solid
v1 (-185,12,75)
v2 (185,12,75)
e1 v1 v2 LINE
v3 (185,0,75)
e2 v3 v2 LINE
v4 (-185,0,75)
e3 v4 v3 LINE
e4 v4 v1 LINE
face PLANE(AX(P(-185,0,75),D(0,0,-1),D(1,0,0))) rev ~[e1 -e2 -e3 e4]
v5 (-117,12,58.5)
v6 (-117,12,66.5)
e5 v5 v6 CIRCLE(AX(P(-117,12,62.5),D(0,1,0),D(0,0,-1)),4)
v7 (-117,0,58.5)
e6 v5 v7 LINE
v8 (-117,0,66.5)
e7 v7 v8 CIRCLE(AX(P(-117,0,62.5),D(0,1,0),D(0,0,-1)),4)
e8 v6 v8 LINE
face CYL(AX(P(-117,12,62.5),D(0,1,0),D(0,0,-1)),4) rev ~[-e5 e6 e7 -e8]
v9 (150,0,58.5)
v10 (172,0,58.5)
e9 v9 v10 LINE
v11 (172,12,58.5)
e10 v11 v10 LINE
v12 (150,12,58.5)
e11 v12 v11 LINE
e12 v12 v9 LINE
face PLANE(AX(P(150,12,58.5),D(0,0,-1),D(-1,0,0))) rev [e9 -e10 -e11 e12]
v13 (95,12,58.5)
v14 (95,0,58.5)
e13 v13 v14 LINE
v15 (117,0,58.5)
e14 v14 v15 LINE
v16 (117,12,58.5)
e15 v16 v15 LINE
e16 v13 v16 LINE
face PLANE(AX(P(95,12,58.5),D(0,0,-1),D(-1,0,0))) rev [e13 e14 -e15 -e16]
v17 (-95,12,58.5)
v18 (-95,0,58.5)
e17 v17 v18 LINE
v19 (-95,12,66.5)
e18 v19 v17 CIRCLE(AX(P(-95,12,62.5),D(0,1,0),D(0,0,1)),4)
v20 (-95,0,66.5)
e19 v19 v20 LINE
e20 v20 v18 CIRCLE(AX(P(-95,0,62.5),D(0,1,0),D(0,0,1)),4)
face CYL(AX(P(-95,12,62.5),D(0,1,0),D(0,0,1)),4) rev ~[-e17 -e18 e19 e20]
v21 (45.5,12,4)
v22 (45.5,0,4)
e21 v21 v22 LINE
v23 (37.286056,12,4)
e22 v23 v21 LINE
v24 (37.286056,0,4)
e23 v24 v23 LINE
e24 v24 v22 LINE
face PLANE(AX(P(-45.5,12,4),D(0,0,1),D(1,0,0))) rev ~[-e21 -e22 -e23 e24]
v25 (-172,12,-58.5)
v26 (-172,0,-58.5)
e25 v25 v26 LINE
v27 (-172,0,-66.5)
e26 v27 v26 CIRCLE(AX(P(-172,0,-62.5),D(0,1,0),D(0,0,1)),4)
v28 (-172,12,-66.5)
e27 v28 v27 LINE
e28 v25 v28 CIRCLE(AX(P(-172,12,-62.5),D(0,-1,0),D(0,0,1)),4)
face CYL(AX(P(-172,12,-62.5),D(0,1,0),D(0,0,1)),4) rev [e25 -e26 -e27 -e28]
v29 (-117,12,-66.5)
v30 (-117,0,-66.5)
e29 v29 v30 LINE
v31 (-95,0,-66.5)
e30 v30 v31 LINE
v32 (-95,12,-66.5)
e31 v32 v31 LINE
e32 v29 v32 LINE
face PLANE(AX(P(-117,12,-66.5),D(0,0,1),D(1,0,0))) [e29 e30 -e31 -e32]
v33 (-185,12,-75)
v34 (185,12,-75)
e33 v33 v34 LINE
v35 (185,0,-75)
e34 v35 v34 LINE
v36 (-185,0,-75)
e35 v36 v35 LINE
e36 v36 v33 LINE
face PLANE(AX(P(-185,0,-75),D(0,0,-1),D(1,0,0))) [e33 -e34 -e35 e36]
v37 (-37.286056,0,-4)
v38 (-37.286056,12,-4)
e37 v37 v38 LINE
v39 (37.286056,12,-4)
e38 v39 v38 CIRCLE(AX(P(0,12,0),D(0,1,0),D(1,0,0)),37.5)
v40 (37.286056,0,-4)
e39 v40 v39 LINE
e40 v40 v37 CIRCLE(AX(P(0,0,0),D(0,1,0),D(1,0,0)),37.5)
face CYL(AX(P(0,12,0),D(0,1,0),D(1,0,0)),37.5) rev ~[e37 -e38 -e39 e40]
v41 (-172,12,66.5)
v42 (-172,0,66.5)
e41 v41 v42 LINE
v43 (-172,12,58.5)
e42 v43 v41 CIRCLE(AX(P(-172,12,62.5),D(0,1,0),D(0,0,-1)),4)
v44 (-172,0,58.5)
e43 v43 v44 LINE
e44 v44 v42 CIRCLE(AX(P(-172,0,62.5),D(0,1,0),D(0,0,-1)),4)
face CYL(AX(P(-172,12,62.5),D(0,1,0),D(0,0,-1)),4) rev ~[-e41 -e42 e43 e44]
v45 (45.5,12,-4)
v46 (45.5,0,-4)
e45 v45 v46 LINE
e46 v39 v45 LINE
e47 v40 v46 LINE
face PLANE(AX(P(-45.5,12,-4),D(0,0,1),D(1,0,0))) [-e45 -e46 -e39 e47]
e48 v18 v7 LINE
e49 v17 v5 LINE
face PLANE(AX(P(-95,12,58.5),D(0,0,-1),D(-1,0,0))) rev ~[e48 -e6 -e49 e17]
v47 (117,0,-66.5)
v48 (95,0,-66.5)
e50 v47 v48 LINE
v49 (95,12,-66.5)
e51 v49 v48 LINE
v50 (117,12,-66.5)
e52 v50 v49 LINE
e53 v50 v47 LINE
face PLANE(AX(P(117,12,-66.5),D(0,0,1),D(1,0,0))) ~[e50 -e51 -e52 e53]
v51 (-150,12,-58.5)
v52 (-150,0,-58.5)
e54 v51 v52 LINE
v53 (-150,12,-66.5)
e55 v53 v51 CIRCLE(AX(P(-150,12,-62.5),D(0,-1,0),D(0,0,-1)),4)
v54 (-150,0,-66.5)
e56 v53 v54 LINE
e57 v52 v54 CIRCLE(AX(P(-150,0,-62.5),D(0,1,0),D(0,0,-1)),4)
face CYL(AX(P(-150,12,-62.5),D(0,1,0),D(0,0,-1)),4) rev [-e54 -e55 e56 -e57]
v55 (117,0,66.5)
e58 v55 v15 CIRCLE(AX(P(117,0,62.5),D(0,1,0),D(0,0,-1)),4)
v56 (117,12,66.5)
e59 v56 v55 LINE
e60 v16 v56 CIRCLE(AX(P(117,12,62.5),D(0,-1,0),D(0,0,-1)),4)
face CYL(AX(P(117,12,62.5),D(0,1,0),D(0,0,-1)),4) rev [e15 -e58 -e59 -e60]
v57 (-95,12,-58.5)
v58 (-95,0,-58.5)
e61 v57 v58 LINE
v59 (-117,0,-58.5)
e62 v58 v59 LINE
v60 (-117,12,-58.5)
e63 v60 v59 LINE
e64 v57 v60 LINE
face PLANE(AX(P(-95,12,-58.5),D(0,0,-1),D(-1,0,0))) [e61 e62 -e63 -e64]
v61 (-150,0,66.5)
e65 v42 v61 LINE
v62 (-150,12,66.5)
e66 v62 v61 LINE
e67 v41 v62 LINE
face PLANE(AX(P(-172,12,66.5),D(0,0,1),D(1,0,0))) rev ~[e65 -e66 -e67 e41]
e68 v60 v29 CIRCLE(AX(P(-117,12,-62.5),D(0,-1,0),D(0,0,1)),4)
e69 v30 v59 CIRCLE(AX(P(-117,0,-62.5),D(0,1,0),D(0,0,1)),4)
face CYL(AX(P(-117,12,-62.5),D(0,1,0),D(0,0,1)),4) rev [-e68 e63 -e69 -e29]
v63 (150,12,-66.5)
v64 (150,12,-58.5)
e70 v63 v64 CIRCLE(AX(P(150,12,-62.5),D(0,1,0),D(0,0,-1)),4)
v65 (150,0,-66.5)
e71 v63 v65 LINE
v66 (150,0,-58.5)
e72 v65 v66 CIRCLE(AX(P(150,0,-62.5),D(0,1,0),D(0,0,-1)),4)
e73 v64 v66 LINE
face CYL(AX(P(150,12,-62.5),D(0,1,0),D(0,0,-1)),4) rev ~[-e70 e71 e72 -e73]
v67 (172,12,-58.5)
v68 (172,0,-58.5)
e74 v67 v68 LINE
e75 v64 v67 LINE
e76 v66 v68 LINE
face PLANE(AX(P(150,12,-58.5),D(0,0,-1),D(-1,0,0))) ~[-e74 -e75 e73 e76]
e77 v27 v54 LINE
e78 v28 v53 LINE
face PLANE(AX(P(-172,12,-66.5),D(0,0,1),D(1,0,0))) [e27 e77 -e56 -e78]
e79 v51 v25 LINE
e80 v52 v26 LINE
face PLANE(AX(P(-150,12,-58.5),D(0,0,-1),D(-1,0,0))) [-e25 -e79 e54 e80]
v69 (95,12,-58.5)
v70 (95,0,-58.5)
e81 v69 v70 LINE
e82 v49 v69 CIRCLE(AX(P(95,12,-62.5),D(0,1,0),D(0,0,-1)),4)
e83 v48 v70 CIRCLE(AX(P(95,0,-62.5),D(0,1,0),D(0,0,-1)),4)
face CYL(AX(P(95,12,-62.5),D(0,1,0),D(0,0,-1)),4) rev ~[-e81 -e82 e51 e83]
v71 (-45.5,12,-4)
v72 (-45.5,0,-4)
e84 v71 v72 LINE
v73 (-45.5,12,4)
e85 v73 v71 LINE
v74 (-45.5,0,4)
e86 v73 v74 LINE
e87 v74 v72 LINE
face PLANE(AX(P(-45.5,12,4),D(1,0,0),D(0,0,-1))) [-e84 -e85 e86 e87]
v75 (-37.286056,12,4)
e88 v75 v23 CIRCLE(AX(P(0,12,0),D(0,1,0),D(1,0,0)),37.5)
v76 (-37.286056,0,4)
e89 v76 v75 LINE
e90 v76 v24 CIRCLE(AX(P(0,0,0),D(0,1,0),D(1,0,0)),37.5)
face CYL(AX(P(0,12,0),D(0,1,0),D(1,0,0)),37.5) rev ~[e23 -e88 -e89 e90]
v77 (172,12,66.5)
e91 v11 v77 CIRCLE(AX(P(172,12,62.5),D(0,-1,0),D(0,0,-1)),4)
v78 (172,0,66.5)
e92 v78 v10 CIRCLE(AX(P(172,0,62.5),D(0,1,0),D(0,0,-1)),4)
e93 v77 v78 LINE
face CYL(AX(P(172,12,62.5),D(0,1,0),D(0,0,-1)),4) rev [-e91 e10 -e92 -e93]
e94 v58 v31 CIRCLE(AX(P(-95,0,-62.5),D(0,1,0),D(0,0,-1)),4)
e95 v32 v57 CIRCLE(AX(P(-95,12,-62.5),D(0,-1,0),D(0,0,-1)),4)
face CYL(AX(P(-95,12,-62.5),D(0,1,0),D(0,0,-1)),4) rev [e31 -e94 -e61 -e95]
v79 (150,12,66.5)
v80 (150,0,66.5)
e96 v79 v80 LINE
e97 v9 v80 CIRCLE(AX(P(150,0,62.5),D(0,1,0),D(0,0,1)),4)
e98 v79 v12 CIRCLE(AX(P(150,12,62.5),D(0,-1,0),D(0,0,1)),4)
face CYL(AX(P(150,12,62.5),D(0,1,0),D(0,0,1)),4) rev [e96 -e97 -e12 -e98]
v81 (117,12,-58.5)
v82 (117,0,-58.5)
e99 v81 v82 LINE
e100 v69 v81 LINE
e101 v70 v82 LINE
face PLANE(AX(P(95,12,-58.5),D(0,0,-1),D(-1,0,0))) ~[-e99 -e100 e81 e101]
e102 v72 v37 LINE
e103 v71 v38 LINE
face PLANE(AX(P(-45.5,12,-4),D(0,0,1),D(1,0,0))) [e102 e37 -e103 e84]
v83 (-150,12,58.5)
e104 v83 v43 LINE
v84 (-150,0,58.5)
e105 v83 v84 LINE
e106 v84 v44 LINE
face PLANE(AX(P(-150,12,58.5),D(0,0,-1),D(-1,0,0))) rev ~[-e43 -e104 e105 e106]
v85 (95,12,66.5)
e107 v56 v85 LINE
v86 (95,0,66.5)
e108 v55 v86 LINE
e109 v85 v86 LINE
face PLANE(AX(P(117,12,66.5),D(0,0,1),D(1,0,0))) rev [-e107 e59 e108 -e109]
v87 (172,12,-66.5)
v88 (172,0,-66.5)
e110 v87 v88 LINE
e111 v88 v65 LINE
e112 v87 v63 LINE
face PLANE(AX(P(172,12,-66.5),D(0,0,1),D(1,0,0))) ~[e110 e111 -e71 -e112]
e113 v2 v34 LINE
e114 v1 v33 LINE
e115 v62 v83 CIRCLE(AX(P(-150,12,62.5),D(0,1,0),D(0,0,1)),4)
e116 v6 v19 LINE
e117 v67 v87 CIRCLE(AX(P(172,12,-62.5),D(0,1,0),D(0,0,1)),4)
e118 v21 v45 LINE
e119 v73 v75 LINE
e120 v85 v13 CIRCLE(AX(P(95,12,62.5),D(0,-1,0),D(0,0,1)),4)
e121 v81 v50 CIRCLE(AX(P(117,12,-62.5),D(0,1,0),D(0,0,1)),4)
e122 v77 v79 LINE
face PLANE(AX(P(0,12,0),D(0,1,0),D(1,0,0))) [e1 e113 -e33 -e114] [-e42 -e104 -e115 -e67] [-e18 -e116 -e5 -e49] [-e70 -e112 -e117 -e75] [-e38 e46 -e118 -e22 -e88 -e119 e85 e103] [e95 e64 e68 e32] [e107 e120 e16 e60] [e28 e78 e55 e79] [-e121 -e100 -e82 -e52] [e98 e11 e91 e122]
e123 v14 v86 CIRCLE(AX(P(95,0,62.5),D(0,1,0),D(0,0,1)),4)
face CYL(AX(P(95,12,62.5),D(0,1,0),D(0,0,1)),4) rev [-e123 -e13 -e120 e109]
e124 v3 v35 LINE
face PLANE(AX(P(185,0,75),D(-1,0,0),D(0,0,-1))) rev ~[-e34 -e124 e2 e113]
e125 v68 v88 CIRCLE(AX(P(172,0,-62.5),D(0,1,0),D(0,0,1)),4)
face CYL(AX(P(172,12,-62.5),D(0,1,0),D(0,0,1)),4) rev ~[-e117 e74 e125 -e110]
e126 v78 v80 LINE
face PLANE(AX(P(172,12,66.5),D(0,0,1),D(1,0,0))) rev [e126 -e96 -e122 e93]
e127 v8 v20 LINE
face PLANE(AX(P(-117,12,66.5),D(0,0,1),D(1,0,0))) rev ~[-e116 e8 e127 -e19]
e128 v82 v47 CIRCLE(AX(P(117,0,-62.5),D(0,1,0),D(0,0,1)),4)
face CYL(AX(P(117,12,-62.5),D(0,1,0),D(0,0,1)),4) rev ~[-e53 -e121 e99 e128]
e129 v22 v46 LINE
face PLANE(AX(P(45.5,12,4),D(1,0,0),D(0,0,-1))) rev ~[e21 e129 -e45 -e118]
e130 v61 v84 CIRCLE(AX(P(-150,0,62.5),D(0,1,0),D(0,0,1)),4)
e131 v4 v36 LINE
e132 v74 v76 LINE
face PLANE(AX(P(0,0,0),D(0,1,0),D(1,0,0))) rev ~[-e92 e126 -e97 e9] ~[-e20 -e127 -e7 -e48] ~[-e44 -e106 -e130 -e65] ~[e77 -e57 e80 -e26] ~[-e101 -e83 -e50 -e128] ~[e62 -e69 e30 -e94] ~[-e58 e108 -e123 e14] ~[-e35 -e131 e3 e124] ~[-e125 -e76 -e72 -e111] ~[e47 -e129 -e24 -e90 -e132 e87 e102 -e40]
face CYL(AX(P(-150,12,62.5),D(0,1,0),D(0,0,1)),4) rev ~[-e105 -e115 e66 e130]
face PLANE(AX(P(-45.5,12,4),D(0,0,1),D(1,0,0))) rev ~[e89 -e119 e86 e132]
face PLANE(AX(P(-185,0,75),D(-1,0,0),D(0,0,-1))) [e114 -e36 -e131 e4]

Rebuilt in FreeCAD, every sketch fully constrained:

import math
import FreeCAD as App
import Part
import Sketcher

V = App.Vector
Q = App.Units.Quantity


def add_polygon(sketch, points):
    """Adds a closed chain of lines whose ends are joined by coincident constraints."""
    first, n = sketch.GeometryCount, len(points)
    for a, b in zip(points, points[1:] + points[:1]):
        sketch.addGeometry(Part.LineSegment(App.Vector(*a, 0), App.Vector(*b, 0)), False)
    for i in range(n):
        sketch.addConstraint(Sketcher.Constraint("Coincident", first + i, 2, first + (i + 1) % n, 1))

doc = App.newDocument("Part")
body = doc.addObject("PartDesign::Body", "Body")

sketch1 = body.newObject("Sketcher::SketchObject", "Sketch")
sketch1.AttachmentSupport = (doc.getObject("XZ_Plane"), [""])
sketch1.MapMode = "FlatFace"
add_polygon(sketch1, [(-185, -75), (-185, 75), (185, 75), (185, -75)])
sketch1.addConstraint([
    Sketcher.Constraint("Vertical", 0),
    Sketcher.Constraint("Horizontal", 1),
    Sketcher.Constraint("Vertical", 2),
    Sketcher.Constraint("Horizontal", 3),
    Sketcher.Constraint("Symmetric", 0, 2, 2, 2, -1, 1),
    Sketcher.Constraint("DistanceX", 1, 1, 1, 2, Q("370 mm")),
    Sketcher.Constraint("DistanceY", 0, 1, 0, 2, Q("150 mm")),
])
pad1 = body.newObject("PartDesign::Pad", "Pad")
pad1.Profile = sketch1
pad1.Length = 12
pad1.Reversed = True

sketch2 = body.newObject("Sketcher::SketchObject", "Sketch001")
sketch2.AttachmentSupport = (doc.getObject("XZ_Plane"), [""])
sketch2.MapMode = "FlatFace"
sketch2.AttachmentOffset = App.Placement(V(0, 0, -12), App.Rotation())
sketch2.addGeometry(Part.Circle(V(0, 0, 0), V(0, 0, 1), 38), False)
sketch2.addConstraint([
    Sketcher.Constraint("Coincident", 0, 3, -1, 1),
    Sketcher.Constraint("Diameter", 0, Q("75 mm")),
])
pocket1 = body.newObject("PartDesign::Pocket", "Pocket")
pocket1.Profile = sketch2
pocket1.Type = "ThroughAll"
pocket1.Reversed = True

sketch3 = body.newObject("Sketcher::SketchObject", "Sketch002")
sketch3.AttachmentSupport = (doc.getObject("XZ_Plane"), [""])
sketch3.MapMode = "FlatFace"
sketch3.AttachmentOffset = App.Placement(V(0, 0, -12), App.Rotation())
add_polygon(sketch3, [(-46, -4), (-46, 4), (46, 4), (46, -4)])
sketch3.addConstraint([
    Sketcher.Constraint("Vertical", 0),
    Sketcher.Constraint("Horizontal", 1),
    Sketcher.Constraint("Vertical", 2),
    Sketcher.Constraint("Horizontal", 3),
    Sketcher.Constraint("Symmetric", 0, 2, 2, 2, -1, 1),
    Sketcher.Constraint("DistanceX", 1, 1, 1, 2, Q("91 mm")),
    Sketcher.Constraint("DistanceY", 0, 1, 0, 2, Q("8 mm")),
])
pocket2 = body.newObject("PartDesign::Pocket", "Pocket001")
pocket2.Profile = sketch3
pocket2.Type = "ThroughAll"
pocket2.Reversed = True

sketch4 = body.newObject("Sketcher::SketchObject", "Sketch003")
sketch4.AttachmentSupport = (doc.getObject("XZ_Plane"), [""])
sketch4.MapMode = "FlatFace"
sketch4.AttachmentOffset = App.Placement(V(0, 0, -12), App.Rotation())
sketch4.addGeometry([
    Part.LineSegment(V(-150, 58.5, 0), V(-172, 58.5, 0)),
    Part.ArcOfCircle(Part.Circle(V(-172, 62.5, 0), V(0, 0, 1), 4), math.radians(90), math.radians(270)),
    Part.LineSegment(V(-172, 66.5, 0), V(-150, 66.5, 0)),
    Part.ArcOfCircle(Part.Circle(V(-150, 62.5, 0), V(0, 0, 1), 4), math.radians(-90), math.radians(90)),
    Part.ArcOfCircle(Part.Circle(V(-172, -62.5, 0), V(0, 0, 1), 4), math.radians(90), math.radians(270)),
    Part.LineSegment(V(-172, -58.5, 0), V(-150, -58.5, 0)),
    Part.ArcOfCircle(Part.Circle(V(-150, -62.5, 0), V(0, 0, 1), 4), math.radians(-90), math.radians(90)),
    Part.LineSegment(V(-150, -66.5, 0), V(-172, -66.5, 0)),
    Part.ArcOfCircle(Part.Circle(V(-117, -62.5, 0), V(0, 0, 1), 4), math.radians(90), math.radians(270)),
    Part.LineSegment(V(-117, -58.5, 0), V(-95, -58.5, 0)),
    Part.ArcOfCircle(Part.Circle(V(-95, -62.5, 0), V(0, 0, 1), 4), math.radians(-90), math.radians(90)),
    Part.LineSegment(V(-95, -66.5, 0), V(-117, -66.5, 0)),
    Part.LineSegment(V(-95, 58.5, 0), V(-117, 58.5, 0)),
    Part.ArcOfCircle(Part.Circle(V(-117, 62.5, 0), V(0, 0, 1), 4), math.radians(90), math.radians(270)),
    Part.LineSegment(V(-117, 66.5, 0), V(-95, 66.5, 0)),
    Part.ArcOfCircle(Part.Circle(V(-95, 62.5, 0), V(0, 0, 1), 4), math.radians(-90), math.radians(90)),
], False)
sketch4.addConstraint([
    Sketcher.Constraint("Tangent", 0, 2, 1, 2),
    Sketcher.Constraint("Tangent", 1, 1, 2, 1),
    Sketcher.Constraint("Tangent", 2, 2, 3, 2),
    Sketcher.Constraint("Tangent", 3, 1, 0, 1),
    Sketcher.Constraint("Tangent", 4, 1, 5, 1),
    Sketcher.Constraint("Tangent", 5, 2, 6, 2),
    Sketcher.Constraint("Tangent", 6, 1, 7, 1),
    Sketcher.Constraint("Tangent", 7, 2, 4, 2),
    Sketcher.Constraint("Tangent", 8, 1, 9, 1),
    Sketcher.Constraint("Tangent", 9, 2, 10, 2),
    Sketcher.Constraint("Tangent", 10, 1, 11, 1),
    Sketcher.Constraint("Tangent", 11, 2, 8, 2),
    Sketcher.Constraint("Tangent", 12, 2, 13, 2),
    Sketcher.Constraint("Tangent", 13, 1, 14, 1),
    Sketcher.Constraint("Tangent", 14, 2, 15, 2),
    Sketcher.Constraint("Tangent", 15, 1, 12, 1),
    Sketcher.Constraint("Horizontal", 0),
    Sketcher.Constraint("Horizontal", 2),
    Sketcher.Constraint("Horizontal", 5),
    Sketcher.Constraint("Horizontal", 7),
    Sketcher.Constraint("Horizontal", 9),
    Sketcher.Constraint("Horizontal", 11),
    Sketcher.Constraint("Horizontal", 12),
    Sketcher.Constraint("Horizontal", 14),
    Sketcher.Constraint("Equal", 3, 4),
    Sketcher.Constraint("Equal", 6, 8),
    Sketcher.Constraint("Equal", 10, 13),
    Sketcher.Constraint("Symmetric", 1, 3, 4, 3, -1),
    Sketcher.Constraint("Symmetric", 8, 3, 13, 3, -1),
    Sketcher.Constraint("Horizontal", 6, 3, 8, 3),
    Sketcher.Constraint("Vertical", 3, 3, 6, 3),
    Sketcher.Constraint("Vertical", 10, 3, 15, 3),
    Sketcher.Constraint("Equal", 7, 9),
    Sketcher.Constraint("Radius", 1, Q("4 mm")),
    Sketcher.Constraint("DistanceX", 0, 2, 0, 1, Q("22 mm")),
    Sketcher.Constraint("DistanceX", 1, 3, -1, 1, Q("172 mm")),
    Sketcher.Constraint("DistanceX", 8, 3, -1, 1, Q("117 mm")),
    Sketcher.Constraint("DistanceY", 4, 3, 1, 3, Q("125 mm")),
])
pocket3 = body.newObject("PartDesign::Pocket", "Pocket002")
pocket3.Profile = sketch4
pocket3.Type = "ThroughAll"
pocket3.Reversed = True
doc.recompute()

mirrored = body.newObject("PartDesign::Mirrored", "Mirrored")
mirrored.Originals = [pocket3]
mirrored.MirrorPlane = (doc.getObject("YZ_Plane"), [""])
body.Tip = mirrored

doc.recompute()
